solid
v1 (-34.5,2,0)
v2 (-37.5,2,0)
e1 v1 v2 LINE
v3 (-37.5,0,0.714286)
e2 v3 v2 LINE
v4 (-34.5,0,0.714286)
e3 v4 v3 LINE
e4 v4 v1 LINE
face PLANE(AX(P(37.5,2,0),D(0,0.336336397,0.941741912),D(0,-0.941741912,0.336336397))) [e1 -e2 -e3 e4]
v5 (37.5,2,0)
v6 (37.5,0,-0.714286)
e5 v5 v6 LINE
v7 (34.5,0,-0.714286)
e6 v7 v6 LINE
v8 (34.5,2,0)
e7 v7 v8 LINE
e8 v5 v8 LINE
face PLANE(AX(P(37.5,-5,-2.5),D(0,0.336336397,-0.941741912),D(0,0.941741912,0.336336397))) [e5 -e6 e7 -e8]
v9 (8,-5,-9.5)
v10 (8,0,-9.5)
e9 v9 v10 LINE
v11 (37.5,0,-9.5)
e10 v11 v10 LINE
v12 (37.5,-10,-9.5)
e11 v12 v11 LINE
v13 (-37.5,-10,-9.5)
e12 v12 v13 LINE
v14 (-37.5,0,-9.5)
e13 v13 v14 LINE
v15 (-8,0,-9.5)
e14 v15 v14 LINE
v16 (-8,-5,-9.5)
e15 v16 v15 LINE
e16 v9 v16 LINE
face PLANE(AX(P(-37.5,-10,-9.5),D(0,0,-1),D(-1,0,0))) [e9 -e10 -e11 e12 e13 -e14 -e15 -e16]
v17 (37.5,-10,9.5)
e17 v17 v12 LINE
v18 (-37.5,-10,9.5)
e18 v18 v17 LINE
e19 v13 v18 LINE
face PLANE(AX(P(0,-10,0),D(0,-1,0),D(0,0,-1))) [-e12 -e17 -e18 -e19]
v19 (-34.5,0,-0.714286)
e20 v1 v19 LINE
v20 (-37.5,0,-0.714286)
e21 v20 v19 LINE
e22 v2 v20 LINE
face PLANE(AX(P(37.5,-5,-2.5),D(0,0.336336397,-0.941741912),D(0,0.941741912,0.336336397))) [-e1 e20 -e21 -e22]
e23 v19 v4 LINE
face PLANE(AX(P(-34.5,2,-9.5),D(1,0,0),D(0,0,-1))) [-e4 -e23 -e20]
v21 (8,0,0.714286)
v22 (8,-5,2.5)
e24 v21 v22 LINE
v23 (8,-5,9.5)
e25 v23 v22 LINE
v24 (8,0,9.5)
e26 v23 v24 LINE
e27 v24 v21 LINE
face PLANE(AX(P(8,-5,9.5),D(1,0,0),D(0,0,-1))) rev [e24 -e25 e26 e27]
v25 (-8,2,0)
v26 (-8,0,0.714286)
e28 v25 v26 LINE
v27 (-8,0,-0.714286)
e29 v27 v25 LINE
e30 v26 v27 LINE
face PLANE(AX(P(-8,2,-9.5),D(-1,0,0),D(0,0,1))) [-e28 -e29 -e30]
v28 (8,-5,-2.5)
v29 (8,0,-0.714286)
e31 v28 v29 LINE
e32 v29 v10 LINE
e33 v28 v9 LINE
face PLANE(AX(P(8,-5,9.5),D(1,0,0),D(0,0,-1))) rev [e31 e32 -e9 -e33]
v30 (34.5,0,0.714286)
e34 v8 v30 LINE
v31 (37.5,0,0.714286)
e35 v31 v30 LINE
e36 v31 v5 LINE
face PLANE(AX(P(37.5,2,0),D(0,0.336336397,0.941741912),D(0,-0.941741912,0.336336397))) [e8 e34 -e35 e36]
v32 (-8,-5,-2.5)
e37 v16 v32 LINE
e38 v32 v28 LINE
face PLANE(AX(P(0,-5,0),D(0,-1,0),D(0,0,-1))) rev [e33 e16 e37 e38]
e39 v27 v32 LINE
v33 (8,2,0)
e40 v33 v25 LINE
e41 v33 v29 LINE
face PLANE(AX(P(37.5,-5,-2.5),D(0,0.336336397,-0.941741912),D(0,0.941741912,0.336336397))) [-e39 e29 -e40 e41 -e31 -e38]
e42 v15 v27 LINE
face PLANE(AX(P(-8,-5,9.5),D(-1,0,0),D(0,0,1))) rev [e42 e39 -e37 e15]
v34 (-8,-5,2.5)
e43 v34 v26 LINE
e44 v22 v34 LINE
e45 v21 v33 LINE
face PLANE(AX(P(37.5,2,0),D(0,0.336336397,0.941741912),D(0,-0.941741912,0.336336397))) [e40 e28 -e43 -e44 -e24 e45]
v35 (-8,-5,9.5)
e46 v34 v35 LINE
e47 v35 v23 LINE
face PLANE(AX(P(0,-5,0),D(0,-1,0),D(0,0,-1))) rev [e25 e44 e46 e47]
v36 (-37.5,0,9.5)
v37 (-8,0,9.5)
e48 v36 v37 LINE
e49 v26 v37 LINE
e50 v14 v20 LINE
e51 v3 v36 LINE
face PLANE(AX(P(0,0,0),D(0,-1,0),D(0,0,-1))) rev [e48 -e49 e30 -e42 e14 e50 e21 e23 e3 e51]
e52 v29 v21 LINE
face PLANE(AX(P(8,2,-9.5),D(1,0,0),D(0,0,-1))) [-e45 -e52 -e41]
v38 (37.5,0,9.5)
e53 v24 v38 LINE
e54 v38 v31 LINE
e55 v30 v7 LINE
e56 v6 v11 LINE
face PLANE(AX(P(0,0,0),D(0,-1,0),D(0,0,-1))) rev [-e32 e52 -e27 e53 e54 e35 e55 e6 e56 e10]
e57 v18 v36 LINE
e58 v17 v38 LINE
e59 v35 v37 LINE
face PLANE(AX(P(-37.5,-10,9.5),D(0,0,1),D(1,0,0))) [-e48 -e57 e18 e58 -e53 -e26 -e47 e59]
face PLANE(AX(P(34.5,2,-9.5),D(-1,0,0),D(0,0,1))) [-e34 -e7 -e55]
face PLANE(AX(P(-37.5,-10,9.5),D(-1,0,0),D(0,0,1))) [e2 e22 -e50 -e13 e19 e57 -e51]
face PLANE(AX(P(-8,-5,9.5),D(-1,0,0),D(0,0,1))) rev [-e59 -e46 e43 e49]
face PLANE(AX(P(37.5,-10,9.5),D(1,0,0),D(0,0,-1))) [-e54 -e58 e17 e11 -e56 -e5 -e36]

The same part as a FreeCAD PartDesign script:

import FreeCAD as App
import Part
import Sketcher

V = App.Vector

doc = App.newDocument("Part")
body = doc.addObject("PartDesign::Body", "Body")

# Sketch on XZ plane
sketch1 = body.newObject("Sketcher::SketchObject", "Sketch")
sketch1.AttachmentSupport = (doc.getObject("XZ_Plane"), [""])
sketch1.MapMode = "FlatFace"
sketch1.addGeometry(Part.LineSegment(V(-37.5, -9.5, 0), V(-37.5, 9.5, 0)), False)
sketch1.addGeometry(Part.LineSegment(V(-37.5, 9.5, 0), V(37.5, 9.5, 0)), False)
sketch1.addGeometry(Part.LineSegment(V(37.5, 9.5, 0), V(37.5, -9.5, 0)), False)
sketch1.addGeometry(Part.LineSegment(V(37.5, -9.5, 0), V(-37.5, -9.5, 0)), False)
sketch1.addConstraint(Sketcher.Constraint("Coincident", 0, 2, 1, 1))
sketch1.addConstraint(Sketcher.Constraint("Coincident", 1, 2, 2, 1))
sketch1.addConstraint(Sketcher.Constraint("Coincident", 2, 2, 3, 1))
sketch1.addConstraint(Sketcher.Constraint("Coincident", 3, 2, 0, 1))
sketch1.addConstraint(Sketcher.Constraint("Vertical", 0))
sketch1.addConstraint(Sketcher.Constraint("Horizontal", 1))
sketch1.addConstraint(Sketcher.Constraint("Vertical", 2))
sketch1.addConstraint(Sketcher.Constraint("Horizontal", 3))
sketch1.addConstraint(Sketcher.Constraint("Symmetric", 0, 2, 2, 2, -1, 1))
sketch1.addConstraint(Sketcher.Constraint("DistanceX", 1, 1, 1, 2, 75.0))
sketch1.addConstraint(Sketcher.Constraint("DistanceY", 0, 1, 0, 2, 19.0))
pad1 = body.newObject("PartDesign::Pad", "Pad")
pad1.Profile = sketch1
pad1.Length = 10

# Sketch on XZ plane
sketch2 = body.newObject("Sketcher::SketchObject", "Sketch001")
sketch2.AttachmentSupport = (doc.getObject("XZ_Plane"), [""])
sketch2.MapMode = "FlatFace"
sketch2.addGeometry(Part.LineSegment(V(-8, -9.5, 0), V(-8, 9.5, 0)), False)
sketch2.addGeometry(Part.LineSegment(V(-8, 9.5, 0), V(8, 9.5, 0)), False)
sketch2.addGeometry(Part.LineSegment(V(8, 9.5, 0), V(8, -9.5, 0)), False)
sketch2.addGeometry(Part.LineSegment(V(8, -9.5, 0), V(-8, -9.5, 0)), False)
sketch2.addConstraint(Sketcher.Constraint("Coincident", 0, 2, 1, 1))
sketch2.addConstraint(Sketcher.Constraint("Coincident", 1, 2, 2, 1))
sketch2.addConstraint(Sketcher.Constraint("Coincident", 2, 2, 3, 1))
sketch2.addConstraint(Sketcher.Constraint("Coincident", 3, 2, 0, 1))
sketch2.addConstraint(Sketcher.Constraint("Vertical", 0))
sketch2.addConstraint(Sketcher.Constraint("Horizontal", 1))
sketch2.addConstraint(Sketcher.Constraint("Vertical", 2))
sketch2.addConstraint(Sketcher.Constraint("Horizontal", 3))
sketch2.addConstraint(Sketcher.Constraint("Symmetric", 0, 2, 2, 2, -1, 1))
sketch2.addConstraint(Sketcher.Constraint("DistanceX", 1, 1, 1, 2, 16.0))
sketch2.addConstraint(Sketcher.Constraint("DistanceY", 0, 1, 0, 2, 19.0))
pocket1 = body.newObject("PartDesign::Pocket", "Pocket")
pocket1.Profile = sketch2
pocket1.Length = 5
pocket1.Reversed = True

# Sketch on YZ plane
sketch3 = body.newObject("Sketcher::SketchObject", "Sketch002")
sketch3.AttachmentSupport = (doc.getObject("YZ_Plane"), [""])
sketch3.MapMode = "FlatFace"
sketch3.AttachmentOffset = App.Placement(V(0, 0, 8), App.Rotation())
sketch3.addGeometry(Part.LineSegment(V(2, 0, 0), V(-5, -2.5, 0)), False)
sketch3.addGeometry(Part.LineSegment(V(-5, -2.5, 0), V(-5, 2.5, 0)), False)
sketch3.addGeometry(Part.LineSegment(V(-5, 2.5, 0), V(2, 0, 0)), False)
sketch3.addConstraint(Sketcher.Constraint("Coincident", 0, 2, 1, 1))
sketch3.addConstraint(Sketcher.Constraint("Coincident", 1, 2, 2, 1))
sketch3.addConstraint(Sketcher.Constraint("Coincident", 2, 2, 0, 1))
sketch3.addConstraint(Sketcher.Constraint("Vertical", 1))
sketch3.addConstraint(Sketcher.Constraint("PointOnObject", 2, 2, -1))
sketch3.addConstraint(Sketcher.Constraint("Equal", 0, 2))
sketch3.addConstraint(Sketcher.Constraint("DistanceY", 1, 1, 1, 2, 5.0))
sketch3.addConstraint(Sketcher.Constraint("DistanceX", 0, 2, -1, 1, 5.0))
sketch3.addConstraint(Sketcher.Constraint("DistanceX", -1, 1, 2, 2, 2.0))
pad2 = body.newObject("PartDesign::Pad", "Pad001")
pad2.Profile = sketch3
pad2.Type = "TwoLengths"
pad2.Length = 45.5
pad2.Length2 = 29.5
pad2.Reversed = True

# Sketch on XZ plane
sketch4 = body.newObject("Sketcher::SketchObject", "Sketch003")
sketch4.AttachmentSupport = (doc.getObject("XZ_Plane"), [""])
sketch4.MapMode = "FlatFace"
sketch4.addGeometry(Part.LineSegment(V(-34.5, -9.5, 0), V(-34.5, 9.5, 0)), False)
sketch4.addGeometry(Part.LineSegment(V(-34.5, 9.5, 0), V(-8, 9.5, 0)), False)
sketch4.addGeometry(Part.LineSegment(V(-8, 9.5, 0), V(-8, -9.5, 0)), False)
sketch4.addGeometry(Part.LineSegment(V(-8, -9.5, 0), V(-34.5, -9.5, 0)), False)
sketch4.addGeometry(Part.LineSegment(V(8, -9.5, 0), V(8, 9.5, 0)), False)
sketch4.addGeometry(Part.LineSegment(V(8, 9.5, 0), V(34.5, 9.5, 0)), False)
sketch4.addGeometry(Part.LineSegment(V(34.5, 9.5, 0), V(34.5, -9.5, 0)), False)
sketch4.addGeometry(Part.LineSegment(V(34.5, -9.5, 0), V(8, -9.5, 0)), False)
sketch4.addConstraint(Sketcher.Constraint("Coincident", 0, 2, 1, 1))
sketch4.addConstraint(Sketcher.Constraint("Coincident", 1, 2, 2, 1))
sketch4.addConstraint(Sketcher.Constraint("Coincident", 2, 2, 3, 1))
sketch4.addConstraint(Sketcher.Constraint("Coincident", 3, 2, 0, 1))
sketch4.addConstraint(Sketcher.Constraint("Coincident", 4, 2, 5, 1))
sketch4.addConstraint(Sketcher.Constraint("Coincident", 5, 2, 6, 1))
sketch4.addConstraint(Sketcher.Constraint("Coincident", 6, 2, 7, 1))
sketch4.addConstraint(Sketcher.Constraint("Coincident", 7, 2, 4, 1))
sketch4.addConstraint(Sketcher.Constraint("Vertical", 0))
sketch4.addConstraint(Sketcher.Constraint("Horizontal", 1))
sketch4.addConstraint(Sketcher.Constraint("Vertical", 2))
sketch4.addConstraint(Sketcher.Constraint("Horizontal", 3))
sketch4.addConstraint(Sketcher.Constraint("Vertical", 4))
sketch4.addConstraint(Sketcher.Constraint("Horizontal", 5))
sketch4.addConstraint(Sketcher.Constraint("Vertical", 6))
sketch4.addConstraint(Sketcher.Constraint("Horizontal", 7))
sketch4.addConstraint(Sketcher.Constraint("Symmetric", 2, 2, 4, 2, -1, 1))
sketch4.addConstraint(Sketcher.Constraint("Symmetric", 0, 2, 6, 2, -1, 1))
sketch4.addConstraint(Sketcher.Constraint("Horizontal", 1, 2, 4, 2))
sketch4.addConstraint(Sketcher.Constraint("DistanceY", 0, 1, 0, 2, 19.0))
sketch4.addConstraint(Sketcher.Constraint("DistanceX", 1, 1, 1, 2, 26.5))
sketch4.addConstraint(Sketcher.Constraint("DistanceX", 1, 2, -1, 1, 8.0))
pocket2 = body.newObject("PartDesign::Pocket", "Pocket001")
pocket2.Profile = sketch4
pocket2.Length = 2

doc.recompute()
